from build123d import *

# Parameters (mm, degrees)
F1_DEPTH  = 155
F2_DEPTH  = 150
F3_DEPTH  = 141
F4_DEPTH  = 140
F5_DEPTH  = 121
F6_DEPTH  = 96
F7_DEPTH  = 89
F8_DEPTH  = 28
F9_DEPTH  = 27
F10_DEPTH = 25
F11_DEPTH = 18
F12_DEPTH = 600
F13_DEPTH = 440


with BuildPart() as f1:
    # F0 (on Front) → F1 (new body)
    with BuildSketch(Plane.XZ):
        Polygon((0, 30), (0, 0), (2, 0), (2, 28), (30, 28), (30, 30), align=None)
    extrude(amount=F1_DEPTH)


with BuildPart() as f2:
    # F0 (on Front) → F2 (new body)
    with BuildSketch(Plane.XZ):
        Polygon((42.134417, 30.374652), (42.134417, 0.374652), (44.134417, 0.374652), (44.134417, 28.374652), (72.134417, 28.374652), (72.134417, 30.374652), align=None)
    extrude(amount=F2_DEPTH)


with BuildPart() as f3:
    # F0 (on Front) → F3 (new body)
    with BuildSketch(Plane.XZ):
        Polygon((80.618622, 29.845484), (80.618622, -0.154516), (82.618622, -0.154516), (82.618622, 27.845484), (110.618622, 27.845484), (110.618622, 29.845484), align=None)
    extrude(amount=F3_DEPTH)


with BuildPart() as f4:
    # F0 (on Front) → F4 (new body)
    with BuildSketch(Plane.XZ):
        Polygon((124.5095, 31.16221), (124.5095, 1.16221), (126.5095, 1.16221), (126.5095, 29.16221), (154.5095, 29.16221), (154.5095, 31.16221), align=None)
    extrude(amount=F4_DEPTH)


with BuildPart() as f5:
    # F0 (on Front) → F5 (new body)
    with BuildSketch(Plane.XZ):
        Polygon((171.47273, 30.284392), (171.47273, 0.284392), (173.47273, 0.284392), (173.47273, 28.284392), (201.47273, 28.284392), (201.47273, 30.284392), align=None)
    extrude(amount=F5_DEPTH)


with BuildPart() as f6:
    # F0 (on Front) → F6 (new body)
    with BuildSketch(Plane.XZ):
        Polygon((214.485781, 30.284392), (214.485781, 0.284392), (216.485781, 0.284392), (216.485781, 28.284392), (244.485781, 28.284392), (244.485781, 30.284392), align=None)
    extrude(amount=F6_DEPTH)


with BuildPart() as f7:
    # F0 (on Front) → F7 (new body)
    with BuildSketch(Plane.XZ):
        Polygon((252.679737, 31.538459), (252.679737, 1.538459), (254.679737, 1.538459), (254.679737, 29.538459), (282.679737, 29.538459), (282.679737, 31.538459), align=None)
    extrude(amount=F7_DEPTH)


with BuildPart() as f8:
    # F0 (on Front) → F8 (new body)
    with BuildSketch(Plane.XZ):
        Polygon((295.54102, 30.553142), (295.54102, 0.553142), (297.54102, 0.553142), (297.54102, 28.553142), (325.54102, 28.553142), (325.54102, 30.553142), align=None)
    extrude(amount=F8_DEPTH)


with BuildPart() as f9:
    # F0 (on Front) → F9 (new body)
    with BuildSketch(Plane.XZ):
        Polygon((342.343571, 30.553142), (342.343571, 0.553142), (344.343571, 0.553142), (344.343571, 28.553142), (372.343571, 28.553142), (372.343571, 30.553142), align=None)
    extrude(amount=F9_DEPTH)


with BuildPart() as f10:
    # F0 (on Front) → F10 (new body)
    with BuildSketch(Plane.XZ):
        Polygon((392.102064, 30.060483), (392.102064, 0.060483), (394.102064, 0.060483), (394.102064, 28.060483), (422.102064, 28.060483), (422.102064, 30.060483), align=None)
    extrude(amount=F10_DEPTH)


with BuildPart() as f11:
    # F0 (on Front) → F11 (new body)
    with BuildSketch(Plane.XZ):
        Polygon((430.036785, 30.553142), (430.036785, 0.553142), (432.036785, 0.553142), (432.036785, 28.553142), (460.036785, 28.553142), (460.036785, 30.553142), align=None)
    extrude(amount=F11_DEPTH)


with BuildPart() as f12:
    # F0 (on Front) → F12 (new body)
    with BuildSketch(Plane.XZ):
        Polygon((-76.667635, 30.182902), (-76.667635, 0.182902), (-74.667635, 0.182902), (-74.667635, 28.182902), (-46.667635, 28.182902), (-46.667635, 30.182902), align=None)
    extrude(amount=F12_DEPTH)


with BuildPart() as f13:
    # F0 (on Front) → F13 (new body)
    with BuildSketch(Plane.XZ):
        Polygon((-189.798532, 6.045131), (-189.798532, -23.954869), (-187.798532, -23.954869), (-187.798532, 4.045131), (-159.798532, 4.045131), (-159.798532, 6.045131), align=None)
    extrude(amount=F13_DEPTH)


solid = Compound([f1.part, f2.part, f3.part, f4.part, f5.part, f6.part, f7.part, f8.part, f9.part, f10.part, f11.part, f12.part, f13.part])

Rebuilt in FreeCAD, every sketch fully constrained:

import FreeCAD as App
import Part
import Sketcher
from FreeCAD import Vector


def add_polygon(sketch, points):
    """Adds a closed chain of lines whose ends are joined by coincident constraints."""
    first, n = sketch.GeometryCount, len(points)
    for a, b in zip(points, points[1:] + points[:1]):
        sketch.addGeometry(Part.LineSegment(App.Vector(*a, 0), App.Vector(*b, 0)), False)
    for i in range(n):
        sketch.addConstraint(Sketcher.Constraint("Coincident", first + i, 2, first + (i + 1) % n, 1))

doc = App.newDocument("Part")
body = doc.addObject("PartDesign::Body", "Body")

sketch1 = body.newObject("Sketcher::SketchObject", "Sketch")
sketch1.AttachmentSupport = (doc.getObject("XZ_Plane"), [""])
sketch1.MapMode = "FlatFace"
add_polygon(sketch1, [(0, 30), (0, 0), (2, 0), (2, 28), (30, 28), (30, 30)])
sketch1.addConstraint([
    Sketcher.Constraint("Vertical", 0),
    Sketcher.Constraint("Horizontal", 1),
    Sketcher.Constraint("Vertical", 2),
    Sketcher.Constraint("Horizontal", 3),
    Sketcher.Constraint("Vertical", 4),
    Sketcher.Constraint("Horizontal", 5),
    Sketcher.Constraint("Coincident", 0, 2, -1, 1),
    Sketcher.Constraint("Equal", 5, 0),
    Sketcher.Constraint("Equal", 3, 2),
    Sketcher.Constraint("DistanceX", 1, 1, 1, 2, 2.0),
    Sketcher.Constraint("DistanceX", 3, 1, 3, 2, 28.0),
])
pad1 = body.newObject("PartDesign::Pad", "Pad")
pad1.Profile = sketch1
pad1.Length = 155
body2 = doc.addObject("PartDesign::Body", "Body001")

sketch2 = body2.newObject("Sketcher::SketchObject", "Sketch001")
sketch2.AttachmentSupport = (doc.getObject("XZ_Plane001"), [""])
sketch2.MapMode = "FlatFace"
add_polygon(sketch2, [(42.1, 30.4), (42.1, 0.4), (44.1, 0.4), (44.1, 28.4), (72.1, 28.4), (72.1, 30.4)])
sketch2.addConstraint([
    Sketcher.Constraint("Vertical", 0),
    Sketcher.Constraint("Horizontal", 1),
    Sketcher.Constraint("Vertical", 2),
    Sketcher.Constraint("Horizontal", 3),
    Sketcher.Constraint("Vertical", 4),
    Sketcher.Constraint("Horizontal", 5),
    Sketcher.Constraint("Equal", 5, 0),
    Sketcher.Constraint("Equal", 3, 2),
    Sketcher.Constraint("DistanceX", 1, 1, 1, 2, 2.0),
    Sketcher.Constraint("DistanceX", 3, 1, 3, 2, 28.0),
    Sketcher.Constraint("DistanceX", -1, 1, 0, 2, 42.134417),
    Sketcher.Constraint("DistanceY", -1, 1, 0, 2, 0.374652),
])
pad2 = body2.newObject("PartDesign::Pad", "Pad001")
pad2.Profile = sketch2
pad2.Length = 150
body3 = doc.addObject("PartDesign::Body", "Body002")

sketch3 = body3.newObject("Sketcher::SketchObject", "Sketch002")
sketch3.AttachmentSupport = (doc.getObject("XZ_Plane002"), [""])
sketch3.MapMode = "FlatFace"
add_polygon(sketch3, [(80.6, 29.8), (80.6, -0.2), (82.6, -0.2), (82.6, 27.8), (110.6, 27.8), (110.6, 29.8)])
sketch3.addConstraint([
    Sketcher.Constraint("Vertical", 0),
    Sketcher.Constraint("Horizontal", 1),
    Sketcher.Constraint("Vertical", 2),
    Sketcher.Constraint("Horizontal", 3),
    Sketcher.Constraint("Vertical", 4),
    Sketcher.Constraint("Horizontal", 5),
    Sketcher.Constraint("Equal", 5, 0),
    Sketcher.Constraint("Equal", 3, 2),
    Sketcher.Constraint("DistanceX", 1, 1, 1, 2, 2.0),
    Sketcher.Constraint("DistanceX", 3, 1, 3, 2, 28.0),
    Sketcher.Constraint("DistanceX", -1, 1, 0, 2, 80.618622),
    Sketcher.Constraint("DistanceY", 0, 2, -1, 1, 0.154516),
])
pad3 = body3.newObject("PartDesign::Pad", "Pad002")
pad3.Profile = sketch3
pad3.Length = 141
body4 = doc.addObject("PartDesign::Body", "Body003")

sketch4 = body4.newObject("Sketcher::SketchObject", "Sketch003")
sketch4.AttachmentSupport = (doc.getObject("XZ_Plane003"), [""])
sketch4.MapMode = "FlatFace"
add_polygon(sketch4, [(124.5, 31.2), (124.5, 1.2), (126.5, 1.2), (126.5, 29.2), (154.5, 29.2), (154.5, 31.2)])
sketch4.addConstraint([
    Sketcher.Constraint("Vertical", 0),
    Sketcher.Constraint("Horizontal", 1),
    Sketcher.Constraint("Vertical", 2),
    Sketcher.Constraint("Horizontal", 3),
    Sketcher.Constraint("Vertical", 4),
    Sketcher.Constraint("Horizontal", 5),
    Sketcher.Constraint("Equal", 5, 0),
    Sketcher.Constraint("Equal", 3, 2),
    Sketcher.Constraint("DistanceX", 1, 1, 1, 2, 2.0),
    Sketcher.Constraint("DistanceX", 3, 1, 3, 2, 28.0),
    Sketcher.Constraint("DistanceX", -1, 1, 0, 2, 124.5095),
    Sketcher.Constraint("DistanceY", -1, 1, 0, 2, 1.16221),
])
pad4 = body4.newObject("PartDesign::Pad", "Pad003")
pad4.Profile = sketch4
pad4.Length = 140
body5 = doc.addObject("PartDesign::Body", "Body004")

sketch5 = body5.newObject("Sketcher::SketchObject", "Sketch004")
sketch5.AttachmentSupport = (doc.getObject("XZ_Plane004"), [""])
sketch5.MapMode = "FlatFace"
add_polygon(sketch5, [(171.5, 30.3), (171.5, 0.3), (173.5, 0.3), (173.5, 28.3), (201.5, 28.3), (201.5, 30.3)])
sketch5.addConstraint([
    Sketcher.Constraint("Vertical", 0),
    Sketcher.Constraint("Horizontal", 1),
    Sketcher.Constraint("Vertical", 2),
    Sketcher.Constraint("Horizontal", 3),
    Sketcher.Constraint("Vertical", 4),
    Sketcher.Constraint("Horizontal", 5),
    Sketcher.Constraint("Equal", 5, 0),
    Sketcher.Constraint("Equal", 3, 2),
    Sketcher.Constraint("DistanceX", 1, 1, 1, 2, 2.0),
    Sketcher.Constraint("DistanceX", 3, 1, 3, 2, 28.0),
    Sketcher.Constraint("DistanceX", -1, 1, 0, 2, 171.47273),
    Sketcher.Constraint("DistanceY", -1, 1, 0, 2, 0.284392),
])
pad5 = body5.newObject("PartDesign::Pad", "Pad004")
pad5.Profile = sketch5
pad5.Length = 121
body6 = doc.addObject("PartDesign::Body", "Body005")

sketch6 = body6.newObject("Sketcher::SketchObject", "Sketch005")
sketch6.AttachmentSupport = (doc.getObject("XZ_Plane005"), [""])
sketch6.MapMode = "FlatFace"
add_polygon(sketch6, [(214.5, 30.3), (214.5, 0.3), (216.5, 0.3), (216.5, 28.3), (244.5, 28.3), (244.5, 30.3)])
sketch6.addConstraint([
    Sketcher.Constraint("Vertical", 0),
    Sketcher.Constraint("Horizontal", 1),
    Sketcher.Constraint("Vertical", 2),
    Sketcher.Constraint("Horizontal", 3),
    Sketcher.Constraint("Vertical", 4),
    Sketcher.Constraint("Horizontal", 5),
    Sketcher.Constraint("Equal", 5, 0),
    Sketcher.Constraint("Equal", 3, 2),
    Sketcher.Constraint("DistanceX", 1, 1, 1, 2, 2.0),
    Sketcher.Constraint("DistanceX", 3, 1, 3, 2, 28.0),
    Sketcher.Constraint("DistanceX", -1, 1, 0, 2, 214.485781),
    Sketcher.Constraint("DistanceY", -1, 1, 0, 2, 0.284392),
])
pad6 = body6.newObject("PartDesign::Pad", "Pad005")
pad6.Profile = sketch6
pad6.Length = 96
body7 = doc.addObject("PartDesign::Body", "Body006")

sketch7 = body7.newObject("Sketcher::SketchObject", "Sketch006")
sketch7.AttachmentSupport = (doc.getObject("XZ_Plane006"), [""])
sketch7.MapMode = "FlatFace"
add_polygon(sketch7, [(252.7, 31.5), (252.7, 1.5), (254.7, 1.5), (254.7, 29.5), (282.7, 29.5), (282.7, 31.5)])
sketch7.addConstraint([
    Sketcher.Constraint("Vertical", 0),
    Sketcher.Constraint("Horizontal", 1),
    Sketcher.Constraint("Vertical", 2),
    Sketcher.Constraint("Horizontal", 3),
    Sketcher.Constraint("Vertical", 4),
    Sketcher.Constraint("Horizontal", 5),
    Sketcher.Constraint("Equal", 5, 0),
    Sketcher.Constraint("Equal", 3, 2),
    Sketcher.Constraint("DistanceX", 1, 1, 1, 2, 2.0),
    Sketcher.Constraint("DistanceX", 3, 1, 3, 2, 28.0),
    Sketcher.Constraint("DistanceY", -1, 1, 0, 2, 1.538459),
    Sketcher.Constraint("DistanceX", -1, 1, 0, 2, 252.679737),
])
pad7 = body7.newObject("PartDesign::Pad", "Pad006")
pad7.Profile = sketch7
pad7.Length = 89
body8 = doc.addObject("PartDesign::Body", "Body007")

sketch8 = body8.newObject("Sketcher::SketchObject", "Sketch007")
sketch8.AttachmentSupport = (doc.getObject("XZ_Plane007"), [""])
sketch8.MapMode = "FlatFace"
add_polygon(sketch8, [(295.5, 30.6), (295.5, 0.6), (297.5, 0.6), (297.5, 28.6), (325.5, 28.6), (325.5, 30.6)])
sketch8.addConstraint([
    Sketcher.Constraint("Vertical", 0),
    Sketcher.Constraint("Horizontal", 1),
    Sketcher.Constraint("Vertical", 2),
    Sketcher.Constraint("Horizontal", 3),
    Sketcher.Constraint("Vertical", 4),
    Sketcher.Constraint("Horizontal", 5),
    Sketcher.Constraint("Equal", 5, 0),
    Sketcher.Constraint("Equal", 3, 2),
    Sketcher.Constraint("DistanceX", 1, 1, 1, 2, 2.0),
    Sketcher.Constraint("DistanceX", 3, 1, 3, 2, 28.0),
    Sketcher.Constraint("DistanceX", -1, 1, 0, 2, 295.54102),
    Sketcher.Constraint("DistanceY", -1, 1, 0, 2, 0.553142),
])
pad8 = body8.newObject("PartDesign::Pad", "Pad007")
pad8.Profile = sketch8
pad8.Length = 28
body9 = doc.addObject("PartDesign::Body", "Body008")

sketch9 = body9.newObject("Sketcher::SketchObject", "Sketch008")
sketch9.AttachmentSupport = (doc.getObject("XZ_Plane008"), [""])
sketch9.MapMode = "FlatFace"
add_polygon(sketch9, [(342.3, 30.6), (342.3, 0.6), (344.3, 0.6), (344.3, 28.6), (372.3, 28.6), (372.3, 30.6)])
sketch9.addConstraint([
    Sketcher.Constraint("Vertical", 0),
    Sketcher.Constraint("Horizontal", 1),
    Sketcher.Constraint("Vertical", 2),
    Sketcher.Constraint("Horizontal", 3),
    Sketcher.Constraint("Vertical", 4),
    Sketcher.Constraint("Horizontal", 5),
    Sketcher.Constraint("Equal", 5, 0),
    Sketcher.Constraint("Equal", 3, 2),
    Sketcher.Constraint("DistanceX", 1, 1, 1, 2, 2.0),
    Sketcher.Constraint("DistanceX", 3, 1, 3, 2, 28.0),
    Sketcher.Constraint("DistanceX", -1, 1, 0, 2, 342.343571),
    Sketcher.Constraint("DistanceY", -1, 1, 0, 2, 0.553142),
])
pad9 = body9.newObject("PartDesign::Pad", "Pad008")
pad9.Profile = sketch9
pad9.Length = 27
body10 = doc.addObject("PartDesign::Body", "Body009")

sketch10 = body10.newObject("Sketcher::SketchObject", "Sketch009")
sketch10.AttachmentSupport = (doc.getObject("XZ_Plane009"), [""])
sketch10.MapMode = "FlatFace"
add_polygon(sketch10, [(392.1, 30.1), (392.1, 0.1), (394.1, 0.1), (394.1, 28.1), (422.1, 28.1), (422.1, 30.1)])
sketch10.addConstraint([
    Sketcher.Constraint("Vertical", 0),
    Sketcher.Constraint("Horizontal", 1),
    Sketcher.Constraint("Vertical", 2),
    Sketcher.Constraint("Horizontal", 3),
    Sketcher.Constraint("Vertical", 4),
    Sketcher.Constraint("Horizontal", 5),
    Sketcher.Constraint("Equal", 5, 0),
    Sketcher.Constraint("Equal", 3, 2),
    Sketcher.Constraint("DistanceX", 1, 1, 1, 2, 2.0),
    Sketcher.Constraint("DistanceX", 3, 1, 3, 2, 28.0),
    Sketcher.Constraint("DistanceX", -1, 1, 0, 2, 392.102064),
    Sketcher.Constraint("DistanceY", -1, 1, 0, 2, 0.060483),
])
pad10 = body10.newObject("PartDesign::Pad", "Pad009")
pad10.Profile = sketch10
pad10.Length = 25
body11 = doc.addObject("PartDesign::Body", "Body010")

sketch11 = body11.newObject("Sketcher::SketchObject", "Sketch010")
sketch11.AttachmentSupport = (doc.getObject("XZ_Plane010"), [""])
sketch11.MapMode = "FlatFace"
add_polygon(sketch11, [(430, 30.6), (430, 0.6), (432, 0.6), (432, 28.6), (460, 28.6), (460, 30.6)])
sketch11.addConstraint([
    Sketcher.Constraint("Vertical", 0),
    Sketcher.Constraint("Horizontal", 1),
    Sketcher.Constraint("Vertical", 2),
    Sketcher.Constraint("Horizontal", 3),
    Sketcher.Constraint("Vertical", 4),
    Sketcher.Constraint("Horizontal", 5),
    Sketcher.Constraint("Equal", 5, 0),
    Sketcher.Constraint("Equal", 3, 2),
    Sketcher.Constraint("DistanceX", 1, 1, 1, 2, 2.0),
    Sketcher.Constraint("DistanceX", 3, 1, 3, 2, 28.0),
    Sketcher.Constraint("DistanceX", -1, 1, 0, 2, 430.036785),
    Sketcher.Constraint("DistanceY", -1, 1, 0, 2, 0.553142),
])
pad11 = body11.newObject("PartDesign::Pad", "Pad010")
pad11.Profile = sketch11
pad11.Length = 18
body12 = doc.addObject("PartDesign::Body", "Body011")

sketch12 = body12.newObject("Sketcher::SketchObject", "Sketch011")
sketch12.AttachmentSupport = (doc.getObject("XZ_Plane011"), [""])
sketch12.MapMode = "FlatFace"
add_polygon(sketch12, [(-76.7, 30.2), (-76.7, 0.2), (-74.7, 0.2), (-74.7, 28.2), (-46.7, 28.2), (-46.7, 30.2)])
sketch12.addConstraint([
    Sketcher.Constraint("Vertical", 0),
    Sketcher.Constraint("Horizontal", 1),
    Sketcher.Constraint("Vertical", 2),
    Sketcher.Constraint("Horizontal", 3),
    Sketcher.Constraint("Vertical", 4),
    Sketcher.Constraint("Horizontal", 5),
    Sketcher.Constraint("Equal", 5, 0),
    Sketcher.Constraint("Equal", 3, 2),
    Sketcher.Constraint("DistanceX", 1, 1, 1, 2, 2.0),
    Sketcher.Constraint("DistanceX", 3, 1, 3, 2, 28.0),
    Sketcher.Constraint("DistanceY", -1, 1, 2, 2, 28.182902),
    Sketcher.Constraint("DistanceX", 0, 2, -1, 1, 76.667635),
])
pad12 = body12.newObject("PartDesign::Pad", "Pad011")
pad12.Profile = sketch12
pad12.Length = 600
body13 = doc.addObject("PartDesign::Body", "Body012")

sketch13 = body13.newObject("Sketcher::SketchObject", "Sketch012")
sketch13.AttachmentSupport = (doc.getObject("XZ_Plane012"), [""])
sketch13.MapMode = "FlatFace"
add_polygon(sketch13, [(-189.8, 6), (-189.8, -24), (-187.8, -24), (-187.8, 4), (-159.8, 4), (-159.8, 6)])
sketch13.addConstraint([
    Sketcher.Constraint("Vertical", 0),
    Sketcher.Constraint("Horizontal", 1),
    Sketcher.Constraint("Vertical", 2),
    Sketcher.Constraint("Horizontal", 3),
    Sketcher.Constraint("Vertical", 4),
    Sketcher.Constraint("Horizontal", 5),
    Sketcher.Constraint("Equal", 5, 0),
    Sketcher.Constraint("Equal", 3, 2),
    Sketcher.Constraint("DistanceX", 1, 1, 1, 2, 2.0),
    Sketcher.Constraint("DistanceX", 3, 1, 3, 2, 28.0),
    Sketcher.Constraint("DistanceX", 0, 2, -1, 1, 189.798532),
    Sketcher.Constraint("DistanceY", 0, 2, -1, 1, 23.954869),
])
pad13 = body13.newObject("PartDesign::Pad", "Pad012")
pad13.Profile = sketch13
pad13.Length = 440

doc.recompute()
